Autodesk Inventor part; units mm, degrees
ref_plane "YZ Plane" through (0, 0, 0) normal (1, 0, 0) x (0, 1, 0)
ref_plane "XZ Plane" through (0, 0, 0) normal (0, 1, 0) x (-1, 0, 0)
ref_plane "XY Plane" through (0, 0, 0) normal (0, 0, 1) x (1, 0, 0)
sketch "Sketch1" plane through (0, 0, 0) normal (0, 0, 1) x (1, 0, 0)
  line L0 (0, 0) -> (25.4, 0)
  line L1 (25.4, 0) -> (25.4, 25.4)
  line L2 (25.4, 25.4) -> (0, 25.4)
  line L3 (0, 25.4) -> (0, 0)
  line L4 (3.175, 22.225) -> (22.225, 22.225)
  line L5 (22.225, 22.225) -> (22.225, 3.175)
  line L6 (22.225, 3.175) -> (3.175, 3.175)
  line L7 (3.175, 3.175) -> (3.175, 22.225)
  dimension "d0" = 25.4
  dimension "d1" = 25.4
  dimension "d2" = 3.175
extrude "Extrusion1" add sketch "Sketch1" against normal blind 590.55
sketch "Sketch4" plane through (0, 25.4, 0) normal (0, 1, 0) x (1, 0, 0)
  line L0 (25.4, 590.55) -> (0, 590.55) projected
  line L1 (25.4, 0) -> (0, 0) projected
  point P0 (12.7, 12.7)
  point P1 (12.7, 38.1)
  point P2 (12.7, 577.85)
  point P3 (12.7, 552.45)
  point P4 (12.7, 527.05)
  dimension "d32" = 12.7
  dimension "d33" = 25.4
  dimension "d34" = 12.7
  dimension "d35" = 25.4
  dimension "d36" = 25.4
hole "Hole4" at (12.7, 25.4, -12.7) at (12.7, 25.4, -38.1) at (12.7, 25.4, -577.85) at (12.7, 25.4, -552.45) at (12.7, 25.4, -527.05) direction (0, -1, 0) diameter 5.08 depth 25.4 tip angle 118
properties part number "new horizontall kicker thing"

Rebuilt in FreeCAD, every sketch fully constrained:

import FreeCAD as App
import Part
import Sketcher
from FreeCAD import Vector
Q = App.Units.Quantity

doc = App.newDocument("Part")
params = doc.addObject("Spreadsheet::Sheet", "Params")
for row, (alias, value) in enumerate([
    ("sketch1_width", "1 in"),
    ("pad1_length", "23.25 in"),
    ("sketch2_diameter", "0.2 in"),
    ("hole_diameter", "0.2 in"),
    ("hole_depth", "1 in"),
], start=1):
    params.set(f"A{row}", alias)
    params.set(f"B{row}", "=" + value)
    params.setAlias(f"B{row}", alias)

body = doc.addObject("PartDesign::Body", "Body")

# Sketch on XY plane
sketch1 = body.newObject("Sketcher::SketchObject", "Sketch")
sketch1.AttachmentSupport = (doc.getObject("XY_Plane"), [""])
sketch1.MapMode = "FlatFace"
sketch1.addGeometry([
    Part.LineSegment(Vector(0, 25.4, 0), Vector(0, 0, 0)),  # 0
    Part.LineSegment(Vector(0, 0, 0), Vector(25.4, 0, 0)),  # 1
    Part.LineSegment(Vector(25.4, 0, 0), Vector(25.4, 25.4, 0)),  # 2
    Part.LineSegment(Vector(25.4, 25.4, 0), Vector(0, 25.4, 0)),  # 3
    Part.LineSegment(Vector(3.175, 3.175, 0), Vector(3.175, 22.225, 0)),  # 4
    Part.LineSegment(Vector(3.175, 22.225, 0), Vector(22.225, 22.225, 0)),  # 5
    Part.LineSegment(Vector(22.225, 22.225, 0), Vector(22.225, 3.175, 0)),  # 6
    Part.LineSegment(Vector(22.225, 3.175, 0), Vector(3.175, 3.175, 0)),  # 7
], False)
sketch1.addConstraint([
    Sketcher.Constraint("Coincident", 0, 2, 1, 1),
    Sketcher.Constraint("Coincident", 1, 2, 2, 1),
    Sketcher.Constraint("Coincident", 2, 2, 3, 1),
    Sketcher.Constraint("Coincident", 3, 2, 0, 1),
    Sketcher.Constraint("Coincident", 4, 2, 5, 1),
    Sketcher.Constraint("Coincident", 5, 2, 6, 1),
    Sketcher.Constraint("Coincident", 6, 2, 7, 1),
    Sketcher.Constraint("Coincident", 7, 2, 4, 1),
    Sketcher.Constraint("Vertical", 0),
    Sketcher.Constraint("Horizontal", 1),
    Sketcher.Constraint("Vertical", 2),
    Sketcher.Constraint("Horizontal", 3),
    Sketcher.Constraint("Vertical", 4),
    Sketcher.Constraint("Horizontal", 5),
    Sketcher.Constraint("Vertical", 6),
    Sketcher.Constraint("Horizontal", 7),
    Sketcher.Constraint("Coincident", 0, 2, -1, 1),
    Sketcher.Constraint("Equal", 3, 0),
    Sketcher.Constraint("Equal", 7, 4),
    Sketcher.Constraint("DistanceX", 1, 1, 1, 2, Q("1 in")),
    Sketcher.Constraint("DistanceX", -1, 1, 4, 2, Q("0.125 in")),
    Sketcher.Constraint("DistanceY", -1, 1, 6, 2, Q("0.125 in")),
    Sketcher.Constraint("DistanceY", 4, 2, 3, 2, Q("0.125 in")),
])
sketch1.setExpression("Constraints[19]", "Params.sketch1_width")
pad1 = body.newObject("PartDesign::Pad", "Pad")
pad1.Profile = sketch1
pad1.setExpression("Length", "Params.pad1_length")
pad1.Reversed = True

# Sketch on XZ plane
sketch2 = body.newObject("Sketcher::SketchObject", "Sketch001")
sketch2.AttachmentSupport = (doc.getObject("XZ_Plane"), [""])
sketch2.MapMode = "FlatFace"
sketch2.AttachmentOffset = App.Placement(Vector(0, 0, -1 * 25.4), App.Rotation())
sketch2.addGeometry([
    Part.Circle(Vector(12.7, -12.7, 0), Vector(0, 0, 1), 2.54),  # 0
    Part.Circle(Vector(12.7, -38.1, 0), Vector(0, 0, 1), 2.54),  # 1
    Part.Circle(Vector(12.7, -577.85, 0), Vector(0, 0, 1), 2.54),  # 2
    Part.Circle(Vector(12.7, -552.45, 0), Vector(0, 0, 1), 2.54),  # 3
    Part.Circle(Vector(12.7, -527.05, 0), Vector(0, 0, 1), 2.54),  # 4
], False)
sketch2.addConstraint([
    Sketcher.Constraint("Equal", 0, 1),
    Sketcher.Constraint("Equal", 1, 2),
    Sketcher.Constraint("Equal", 2, 3),
    Sketcher.Constraint("Equal", 3, 4),
    Sketcher.Constraint("Vertical", 0, 3, 1, 3),
    Sketcher.Constraint("Vertical", 1, 3, 2, 3),
    Sketcher.Constraint("Vertical", 2, 3, 3, 3),
    Sketcher.Constraint("Vertical", 3, 3, 4, 3),
    Sketcher.Constraint("Diameter", 0, Q("0.2 in")),
    Sketcher.Constraint("DistanceY", 1, 3, 0, 3, Q("1 in")),
    Sketcher.Constraint("DistanceY", 2, 3, 3, 3, Q("1 in")),
    Sketcher.Constraint("DistanceY", 3, 3, 4, 3, Q("1 in")),
    Sketcher.Constraint("DistanceX", -1, 1, 0, 3, Q("0.5 in")),
    Sketcher.Constraint("DistanceY", 0, 3, -1, 1, Q("0.5 in")),
    Sketcher.Constraint("DistanceY", 2, 3, -1, 1, Q("22.75 in")),
])
sketch2.setExpression("Constraints[8]", "Params.sketch2_diameter")
doc.recompute()
hole = body.newObject("PartDesign::Hole", "Hole")
hole.Profile = sketch2
hole.ThreadType = "None"
hole.setExpression("Diameter", "Params.hole_diameter")
hole.DepthType = "Dimension"
hole.setExpression("Depth", "Params.hole_depth")
hole.DrillPoint = "Angled"
hole.DrillPointAngle = 118
hole.Reversed = True

doc.recompute()
